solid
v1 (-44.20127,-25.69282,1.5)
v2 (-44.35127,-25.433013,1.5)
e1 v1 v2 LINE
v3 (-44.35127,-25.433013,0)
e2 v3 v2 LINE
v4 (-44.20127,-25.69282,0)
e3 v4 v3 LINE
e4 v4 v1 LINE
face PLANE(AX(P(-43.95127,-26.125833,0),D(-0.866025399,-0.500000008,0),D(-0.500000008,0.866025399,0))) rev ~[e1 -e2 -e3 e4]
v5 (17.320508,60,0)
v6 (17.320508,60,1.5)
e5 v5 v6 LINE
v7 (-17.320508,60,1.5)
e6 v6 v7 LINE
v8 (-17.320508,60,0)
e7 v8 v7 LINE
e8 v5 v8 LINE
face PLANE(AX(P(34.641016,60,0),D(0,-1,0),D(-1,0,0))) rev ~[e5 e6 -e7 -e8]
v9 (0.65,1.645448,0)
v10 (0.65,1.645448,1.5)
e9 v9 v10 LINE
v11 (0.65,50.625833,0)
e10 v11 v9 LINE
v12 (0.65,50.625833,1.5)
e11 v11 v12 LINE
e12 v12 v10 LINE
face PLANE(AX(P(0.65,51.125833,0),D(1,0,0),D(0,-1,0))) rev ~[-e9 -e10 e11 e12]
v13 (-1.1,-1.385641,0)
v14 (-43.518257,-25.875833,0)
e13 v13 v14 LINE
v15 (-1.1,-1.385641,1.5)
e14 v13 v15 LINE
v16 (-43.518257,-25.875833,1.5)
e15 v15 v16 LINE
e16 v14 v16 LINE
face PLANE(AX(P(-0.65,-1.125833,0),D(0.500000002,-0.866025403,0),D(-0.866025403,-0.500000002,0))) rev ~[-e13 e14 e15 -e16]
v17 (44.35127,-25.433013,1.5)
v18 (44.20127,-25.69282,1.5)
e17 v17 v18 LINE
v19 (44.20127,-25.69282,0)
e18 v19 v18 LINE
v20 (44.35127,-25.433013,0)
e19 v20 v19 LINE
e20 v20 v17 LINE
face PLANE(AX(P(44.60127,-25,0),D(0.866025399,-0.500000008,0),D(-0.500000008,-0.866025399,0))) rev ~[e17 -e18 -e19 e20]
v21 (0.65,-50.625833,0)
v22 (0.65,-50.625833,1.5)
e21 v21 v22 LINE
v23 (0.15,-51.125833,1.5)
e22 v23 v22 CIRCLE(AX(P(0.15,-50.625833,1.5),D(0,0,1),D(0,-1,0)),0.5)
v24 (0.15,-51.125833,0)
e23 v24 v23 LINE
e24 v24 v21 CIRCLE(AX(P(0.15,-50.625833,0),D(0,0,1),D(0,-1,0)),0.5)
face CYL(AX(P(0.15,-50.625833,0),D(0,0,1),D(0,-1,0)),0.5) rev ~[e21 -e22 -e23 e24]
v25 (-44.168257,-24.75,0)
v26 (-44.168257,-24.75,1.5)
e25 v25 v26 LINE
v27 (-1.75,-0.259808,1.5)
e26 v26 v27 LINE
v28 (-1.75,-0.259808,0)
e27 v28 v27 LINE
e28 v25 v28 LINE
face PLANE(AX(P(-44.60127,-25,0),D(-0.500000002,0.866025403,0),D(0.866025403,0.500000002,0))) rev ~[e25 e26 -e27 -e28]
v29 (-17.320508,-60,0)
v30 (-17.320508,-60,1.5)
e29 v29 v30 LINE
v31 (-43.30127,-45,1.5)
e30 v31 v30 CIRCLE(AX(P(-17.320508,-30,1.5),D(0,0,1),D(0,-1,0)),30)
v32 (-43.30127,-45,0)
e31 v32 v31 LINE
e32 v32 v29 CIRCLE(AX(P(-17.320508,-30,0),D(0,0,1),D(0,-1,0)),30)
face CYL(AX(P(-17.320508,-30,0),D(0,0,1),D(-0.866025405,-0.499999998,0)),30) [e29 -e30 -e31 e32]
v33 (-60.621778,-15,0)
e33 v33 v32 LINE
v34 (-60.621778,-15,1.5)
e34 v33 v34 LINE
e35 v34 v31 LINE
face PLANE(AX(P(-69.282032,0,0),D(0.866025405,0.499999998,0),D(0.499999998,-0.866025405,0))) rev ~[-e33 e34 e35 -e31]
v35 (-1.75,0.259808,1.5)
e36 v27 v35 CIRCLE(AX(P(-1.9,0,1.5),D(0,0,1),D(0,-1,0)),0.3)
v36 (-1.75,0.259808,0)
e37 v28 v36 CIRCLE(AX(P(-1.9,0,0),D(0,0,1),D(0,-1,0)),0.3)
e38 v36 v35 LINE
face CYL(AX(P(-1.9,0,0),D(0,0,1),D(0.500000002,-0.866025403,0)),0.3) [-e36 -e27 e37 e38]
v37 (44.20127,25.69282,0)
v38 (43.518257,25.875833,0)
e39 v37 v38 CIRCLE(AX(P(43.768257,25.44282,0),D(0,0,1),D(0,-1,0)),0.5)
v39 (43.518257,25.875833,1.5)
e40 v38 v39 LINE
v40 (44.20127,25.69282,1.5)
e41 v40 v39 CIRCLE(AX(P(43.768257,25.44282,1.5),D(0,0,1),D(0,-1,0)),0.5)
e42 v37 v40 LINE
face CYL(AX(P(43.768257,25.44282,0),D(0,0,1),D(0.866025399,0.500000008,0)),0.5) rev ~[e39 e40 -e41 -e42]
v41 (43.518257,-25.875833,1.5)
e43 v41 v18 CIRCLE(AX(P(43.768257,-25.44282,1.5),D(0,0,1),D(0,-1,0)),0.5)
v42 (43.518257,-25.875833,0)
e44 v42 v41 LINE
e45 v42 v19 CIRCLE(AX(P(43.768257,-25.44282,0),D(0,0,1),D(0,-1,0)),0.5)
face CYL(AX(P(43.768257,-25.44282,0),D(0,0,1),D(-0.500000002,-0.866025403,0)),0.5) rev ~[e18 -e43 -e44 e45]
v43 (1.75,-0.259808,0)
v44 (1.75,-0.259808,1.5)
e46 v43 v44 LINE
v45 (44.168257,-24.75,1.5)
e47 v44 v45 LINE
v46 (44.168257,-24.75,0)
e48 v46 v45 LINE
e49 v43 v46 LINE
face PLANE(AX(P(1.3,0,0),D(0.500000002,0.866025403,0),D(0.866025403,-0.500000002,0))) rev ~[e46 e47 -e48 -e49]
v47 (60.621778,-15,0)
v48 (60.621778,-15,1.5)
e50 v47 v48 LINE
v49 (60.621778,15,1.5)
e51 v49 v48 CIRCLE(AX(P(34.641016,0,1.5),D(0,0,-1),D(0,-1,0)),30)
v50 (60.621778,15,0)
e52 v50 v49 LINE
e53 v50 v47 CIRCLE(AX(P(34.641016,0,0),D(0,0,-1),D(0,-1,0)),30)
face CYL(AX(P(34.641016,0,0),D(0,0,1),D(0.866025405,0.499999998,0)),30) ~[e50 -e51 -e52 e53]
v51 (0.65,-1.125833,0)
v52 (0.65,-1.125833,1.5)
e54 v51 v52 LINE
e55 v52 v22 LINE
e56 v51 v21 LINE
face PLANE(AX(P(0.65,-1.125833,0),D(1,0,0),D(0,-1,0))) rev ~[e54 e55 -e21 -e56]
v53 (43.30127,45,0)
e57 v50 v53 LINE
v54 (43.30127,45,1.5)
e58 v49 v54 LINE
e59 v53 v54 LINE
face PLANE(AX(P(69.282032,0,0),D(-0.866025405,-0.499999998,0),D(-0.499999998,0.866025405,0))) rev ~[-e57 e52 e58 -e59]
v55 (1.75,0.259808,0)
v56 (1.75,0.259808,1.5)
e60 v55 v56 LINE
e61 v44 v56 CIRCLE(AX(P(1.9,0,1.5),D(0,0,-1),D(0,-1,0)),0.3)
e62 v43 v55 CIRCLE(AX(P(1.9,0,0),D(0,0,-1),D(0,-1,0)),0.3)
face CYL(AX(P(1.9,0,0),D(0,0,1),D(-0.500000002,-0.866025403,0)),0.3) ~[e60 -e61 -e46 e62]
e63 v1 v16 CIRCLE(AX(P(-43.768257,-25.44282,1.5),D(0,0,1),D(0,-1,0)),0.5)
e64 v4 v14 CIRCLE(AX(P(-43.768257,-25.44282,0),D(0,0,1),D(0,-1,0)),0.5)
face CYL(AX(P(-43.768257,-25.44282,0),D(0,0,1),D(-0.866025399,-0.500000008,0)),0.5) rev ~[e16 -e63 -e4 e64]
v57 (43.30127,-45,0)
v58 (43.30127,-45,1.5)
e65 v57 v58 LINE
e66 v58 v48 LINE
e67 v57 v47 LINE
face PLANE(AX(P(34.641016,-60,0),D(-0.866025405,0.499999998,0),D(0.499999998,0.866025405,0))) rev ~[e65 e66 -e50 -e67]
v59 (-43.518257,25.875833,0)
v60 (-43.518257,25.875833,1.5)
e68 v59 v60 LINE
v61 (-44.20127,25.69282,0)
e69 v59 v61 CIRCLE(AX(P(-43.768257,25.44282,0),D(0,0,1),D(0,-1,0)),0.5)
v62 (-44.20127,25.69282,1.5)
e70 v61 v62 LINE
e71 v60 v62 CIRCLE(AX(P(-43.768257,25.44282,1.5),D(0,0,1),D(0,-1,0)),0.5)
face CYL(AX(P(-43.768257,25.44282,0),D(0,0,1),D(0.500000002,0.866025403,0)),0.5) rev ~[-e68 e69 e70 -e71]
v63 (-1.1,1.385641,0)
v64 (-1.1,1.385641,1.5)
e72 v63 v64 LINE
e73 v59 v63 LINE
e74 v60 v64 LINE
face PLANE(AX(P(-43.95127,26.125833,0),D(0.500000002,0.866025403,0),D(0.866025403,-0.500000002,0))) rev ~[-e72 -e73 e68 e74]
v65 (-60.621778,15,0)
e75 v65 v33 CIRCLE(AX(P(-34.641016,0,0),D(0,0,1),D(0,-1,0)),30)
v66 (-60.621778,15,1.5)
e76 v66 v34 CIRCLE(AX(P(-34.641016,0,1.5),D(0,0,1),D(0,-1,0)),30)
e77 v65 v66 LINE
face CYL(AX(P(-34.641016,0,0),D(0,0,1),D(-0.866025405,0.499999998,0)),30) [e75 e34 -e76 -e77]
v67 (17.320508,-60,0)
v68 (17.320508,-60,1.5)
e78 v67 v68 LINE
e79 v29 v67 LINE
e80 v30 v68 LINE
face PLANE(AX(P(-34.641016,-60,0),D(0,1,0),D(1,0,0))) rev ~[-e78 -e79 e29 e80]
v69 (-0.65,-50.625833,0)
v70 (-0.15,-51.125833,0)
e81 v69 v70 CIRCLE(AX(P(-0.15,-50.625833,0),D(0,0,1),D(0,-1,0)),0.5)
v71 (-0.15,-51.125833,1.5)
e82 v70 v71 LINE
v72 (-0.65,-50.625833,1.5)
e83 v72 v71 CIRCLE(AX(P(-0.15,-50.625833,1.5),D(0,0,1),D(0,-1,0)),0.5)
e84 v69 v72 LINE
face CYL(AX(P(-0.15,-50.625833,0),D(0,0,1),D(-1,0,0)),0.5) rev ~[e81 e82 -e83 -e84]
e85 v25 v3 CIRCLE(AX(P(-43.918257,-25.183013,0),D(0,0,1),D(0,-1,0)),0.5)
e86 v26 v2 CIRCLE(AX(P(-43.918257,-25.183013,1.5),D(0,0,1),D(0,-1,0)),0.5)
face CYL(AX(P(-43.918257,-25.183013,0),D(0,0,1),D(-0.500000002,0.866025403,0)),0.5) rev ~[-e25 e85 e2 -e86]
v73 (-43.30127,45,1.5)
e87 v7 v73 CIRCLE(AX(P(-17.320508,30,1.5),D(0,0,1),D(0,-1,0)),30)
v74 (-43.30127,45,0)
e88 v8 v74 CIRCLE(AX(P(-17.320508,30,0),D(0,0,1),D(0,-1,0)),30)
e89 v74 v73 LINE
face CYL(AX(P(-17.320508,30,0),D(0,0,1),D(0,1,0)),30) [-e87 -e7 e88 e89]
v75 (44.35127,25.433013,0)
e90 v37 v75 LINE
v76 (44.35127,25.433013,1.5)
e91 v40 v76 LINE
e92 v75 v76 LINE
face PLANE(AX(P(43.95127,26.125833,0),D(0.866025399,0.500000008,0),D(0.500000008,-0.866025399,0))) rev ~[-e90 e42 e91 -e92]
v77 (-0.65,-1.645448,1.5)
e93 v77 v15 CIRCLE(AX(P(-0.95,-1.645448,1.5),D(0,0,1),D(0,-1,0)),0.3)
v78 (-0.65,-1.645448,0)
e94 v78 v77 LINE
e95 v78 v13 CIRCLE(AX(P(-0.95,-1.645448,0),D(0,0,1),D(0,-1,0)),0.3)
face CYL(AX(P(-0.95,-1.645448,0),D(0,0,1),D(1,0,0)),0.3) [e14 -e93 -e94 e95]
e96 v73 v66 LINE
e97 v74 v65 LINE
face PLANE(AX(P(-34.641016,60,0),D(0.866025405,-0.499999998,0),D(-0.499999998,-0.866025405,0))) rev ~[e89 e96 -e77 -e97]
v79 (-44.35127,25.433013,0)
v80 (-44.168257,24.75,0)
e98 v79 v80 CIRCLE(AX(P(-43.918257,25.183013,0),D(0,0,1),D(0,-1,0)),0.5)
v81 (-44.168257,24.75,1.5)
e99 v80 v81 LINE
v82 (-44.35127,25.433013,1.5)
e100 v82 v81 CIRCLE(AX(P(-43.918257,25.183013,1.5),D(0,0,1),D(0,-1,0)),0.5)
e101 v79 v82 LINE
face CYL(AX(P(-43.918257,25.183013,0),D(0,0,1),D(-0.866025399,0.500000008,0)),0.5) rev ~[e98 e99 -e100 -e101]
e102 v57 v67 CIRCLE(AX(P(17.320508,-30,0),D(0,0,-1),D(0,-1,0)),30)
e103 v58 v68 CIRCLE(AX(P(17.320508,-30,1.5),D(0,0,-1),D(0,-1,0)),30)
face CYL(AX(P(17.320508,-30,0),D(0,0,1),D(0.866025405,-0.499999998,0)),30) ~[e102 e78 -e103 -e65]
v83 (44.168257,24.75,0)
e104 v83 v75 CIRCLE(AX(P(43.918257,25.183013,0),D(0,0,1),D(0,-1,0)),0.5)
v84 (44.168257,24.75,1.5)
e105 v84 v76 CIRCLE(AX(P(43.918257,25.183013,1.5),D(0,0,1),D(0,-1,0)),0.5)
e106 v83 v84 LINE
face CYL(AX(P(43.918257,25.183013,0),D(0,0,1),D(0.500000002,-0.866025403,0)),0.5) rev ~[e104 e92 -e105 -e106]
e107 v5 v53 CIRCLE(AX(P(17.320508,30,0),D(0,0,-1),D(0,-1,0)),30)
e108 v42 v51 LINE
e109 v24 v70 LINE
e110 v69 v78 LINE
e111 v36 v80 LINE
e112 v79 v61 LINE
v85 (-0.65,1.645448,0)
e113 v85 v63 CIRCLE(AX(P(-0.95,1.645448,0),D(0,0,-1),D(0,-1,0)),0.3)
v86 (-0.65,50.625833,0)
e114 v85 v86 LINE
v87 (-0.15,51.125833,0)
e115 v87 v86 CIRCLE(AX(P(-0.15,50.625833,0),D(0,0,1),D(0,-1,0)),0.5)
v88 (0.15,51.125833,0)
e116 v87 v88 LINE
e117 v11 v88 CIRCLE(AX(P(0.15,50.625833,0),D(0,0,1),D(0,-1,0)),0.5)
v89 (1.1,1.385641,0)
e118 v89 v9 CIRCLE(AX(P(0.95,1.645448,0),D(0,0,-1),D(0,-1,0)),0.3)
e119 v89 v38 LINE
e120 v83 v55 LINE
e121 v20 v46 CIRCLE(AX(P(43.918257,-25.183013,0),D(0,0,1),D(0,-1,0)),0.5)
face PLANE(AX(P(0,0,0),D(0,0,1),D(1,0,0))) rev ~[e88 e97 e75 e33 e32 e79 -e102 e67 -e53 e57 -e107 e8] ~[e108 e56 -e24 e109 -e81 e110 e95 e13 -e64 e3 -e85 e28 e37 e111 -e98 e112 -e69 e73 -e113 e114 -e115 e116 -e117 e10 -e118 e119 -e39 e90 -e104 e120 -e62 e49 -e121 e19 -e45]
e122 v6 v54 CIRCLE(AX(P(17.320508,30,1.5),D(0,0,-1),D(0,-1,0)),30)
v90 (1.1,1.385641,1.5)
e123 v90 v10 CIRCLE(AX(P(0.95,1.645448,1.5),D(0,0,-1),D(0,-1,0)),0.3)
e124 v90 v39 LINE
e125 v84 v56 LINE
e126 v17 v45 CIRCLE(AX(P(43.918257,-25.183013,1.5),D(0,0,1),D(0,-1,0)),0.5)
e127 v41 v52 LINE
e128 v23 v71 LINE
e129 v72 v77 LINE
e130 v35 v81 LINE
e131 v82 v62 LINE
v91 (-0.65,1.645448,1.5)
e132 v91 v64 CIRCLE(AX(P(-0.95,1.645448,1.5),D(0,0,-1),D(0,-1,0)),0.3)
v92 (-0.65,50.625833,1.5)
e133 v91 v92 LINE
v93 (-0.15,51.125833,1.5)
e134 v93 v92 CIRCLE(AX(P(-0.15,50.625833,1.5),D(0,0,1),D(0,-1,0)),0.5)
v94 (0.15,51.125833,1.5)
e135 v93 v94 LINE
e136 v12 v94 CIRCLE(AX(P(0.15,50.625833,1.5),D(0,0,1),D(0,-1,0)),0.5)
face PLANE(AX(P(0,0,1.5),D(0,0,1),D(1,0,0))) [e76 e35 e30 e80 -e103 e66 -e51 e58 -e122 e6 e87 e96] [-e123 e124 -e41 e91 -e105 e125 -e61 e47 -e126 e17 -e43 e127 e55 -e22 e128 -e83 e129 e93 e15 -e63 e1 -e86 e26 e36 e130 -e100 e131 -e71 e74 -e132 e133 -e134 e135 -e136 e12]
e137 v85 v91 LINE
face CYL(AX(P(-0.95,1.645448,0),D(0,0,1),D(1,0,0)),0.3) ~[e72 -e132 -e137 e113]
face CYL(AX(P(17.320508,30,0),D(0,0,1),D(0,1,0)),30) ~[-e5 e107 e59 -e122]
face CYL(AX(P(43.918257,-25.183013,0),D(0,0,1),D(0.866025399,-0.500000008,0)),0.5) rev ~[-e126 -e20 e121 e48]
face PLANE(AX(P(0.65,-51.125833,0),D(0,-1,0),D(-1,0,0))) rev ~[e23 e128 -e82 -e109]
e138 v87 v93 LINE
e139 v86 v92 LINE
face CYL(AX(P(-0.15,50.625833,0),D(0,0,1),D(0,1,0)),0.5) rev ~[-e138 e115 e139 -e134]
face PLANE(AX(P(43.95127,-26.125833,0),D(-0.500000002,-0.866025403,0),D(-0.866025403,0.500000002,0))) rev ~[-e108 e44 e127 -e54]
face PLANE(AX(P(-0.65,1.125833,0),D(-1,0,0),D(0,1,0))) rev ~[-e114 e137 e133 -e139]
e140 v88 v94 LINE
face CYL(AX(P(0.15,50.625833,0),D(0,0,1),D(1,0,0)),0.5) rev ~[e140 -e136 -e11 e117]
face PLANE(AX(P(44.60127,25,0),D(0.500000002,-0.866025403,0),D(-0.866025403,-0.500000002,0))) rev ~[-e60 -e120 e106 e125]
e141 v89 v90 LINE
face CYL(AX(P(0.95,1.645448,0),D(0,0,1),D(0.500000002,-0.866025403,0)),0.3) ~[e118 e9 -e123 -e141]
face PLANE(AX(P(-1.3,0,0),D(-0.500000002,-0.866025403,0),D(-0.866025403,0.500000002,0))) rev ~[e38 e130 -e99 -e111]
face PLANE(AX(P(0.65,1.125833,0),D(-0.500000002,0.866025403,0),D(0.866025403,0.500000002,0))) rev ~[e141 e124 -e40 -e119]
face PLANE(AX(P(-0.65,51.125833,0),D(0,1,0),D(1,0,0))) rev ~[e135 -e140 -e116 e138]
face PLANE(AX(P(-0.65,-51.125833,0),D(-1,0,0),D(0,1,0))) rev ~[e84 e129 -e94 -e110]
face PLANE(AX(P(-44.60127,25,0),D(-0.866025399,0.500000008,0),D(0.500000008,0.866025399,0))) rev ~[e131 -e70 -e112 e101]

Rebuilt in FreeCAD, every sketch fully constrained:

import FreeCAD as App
import Part
import Sketcher
from FreeCAD import Vector
Q = App.Units.Quantity


def edges_at(feature, points):
    """Names of the edges that pass closest to the given points."""
    edges = feature.Shape.Edges
    near = lambda p: min(range(len(edges)), key=lambda i: edges[i].distToShape(Part.Vertex(*p))[0])
    return sorted({f"Edge{near(p) + 1}" for p in points})

doc = App.newDocument("Part")
body = doc.addObject("PartDesign::Body", "Body")

# Sketch on XY plane
sketch1 = body.newObject("Sketcher::SketchObject", "Sketch")
sketch1.AttachmentSupport = (doc.getObject("XY_Plane"), [""])
sketch1.MapMode = "FlatFace"
sketch1.addGeometry([
    Part.LineSegment(Vector(34.641016, 60, 0), Vector(-34.641016, 60, 0)),  # 0
    Part.LineSegment(Vector(-34.641016, 60, 0), Vector(-69.282032, 0, 0)),  # 1
    Part.LineSegment(Vector(-69.282032, 0, 0), Vector(-34.641016, -60, 0)),  # 2
    Part.LineSegment(Vector(-34.641016, -60, 0), Vector(34.641016, -60, 0)),  # 3
    Part.LineSegment(Vector(34.641016, -60, 0), Vector(69.282032, 0, 0)),  # 4
    Part.LineSegment(Vector(69.282032, 0, 0), Vector(34.641016, 60, 0)),  # 5
    Part.LineSegment(Vector(43.95127, -26.125833, 0), Vector(0.65, -1.125833, 0)),  # 6
    Part.LineSegment(Vector(0.65, -1.125833, 0), Vector(0.65, -51.125833, 0)),  # 7
    Part.LineSegment(Vector(0.65, -51.125833, 0), Vector(-0.65, -51.125833, 0)),  # 8
    Part.LineSegment(Vector(-0.65, -51.125833, 0), Vector(-0.65, -1.125833, 0)),  # 9
    Part.LineSegment(Vector(-0.65, -1.125833, 0), Vector(-43.95127, -26.125833, 0)),  # 10
    Part.LineSegment(Vector(-43.95127, -26.125833, 0), Vector(-44.60127, -25, 0)),  # 11
    Part.LineSegment(Vector(-44.60127, -25, 0), Vector(-1.3, 0, 0)),  # 12
    Part.LineSegment(Vector(-1.3, 0, 0), Vector(-44.60127, 25, 0)),  # 13
    Part.LineSegment(Vector(-44.60127, 25, 0), Vector(-43.95127, 26.125833, 0)),  # 14
    Part.LineSegment(Vector(-43.95127, 26.125833, 0), Vector(-0.65, 1.125833, 0)),  # 15
    Part.LineSegment(Vector(-0.65, 1.125833, 0), Vector(-0.65, 51.125833, 0)),  # 16
    Part.LineSegment(Vector(-0.65, 51.125833, 0), Vector(0.65, 51.125833, 0)),  # 17
    Part.LineSegment(Vector(0.65, 51.125833, 0), Vector(0.65, 1.125833, 0)),  # 18
    Part.LineSegment(Vector(0.65, 1.125833, 0), Vector(43.95127, 26.125833, 0)),  # 19
    Part.LineSegment(Vector(43.95127, 26.125833, 0), Vector(44.60127, 25, 0)),  # 20
    Part.LineSegment(Vector(44.60127, 25, 0), Vector(1.3, 0, 0)),  # 21
    Part.LineSegment(Vector(1.3, 0, 0), Vector(44.60127, -25, 0)),  # 22
    Part.LineSegment(Vector(44.60127, -25, 0), Vector(43.95127, -26.125833, 0)),  # 23
], False)
sketch1.addConstraint([
    Sketcher.Constraint("Coincident", 0, 2, 1, 1),
    Sketcher.Constraint("Coincident", 1, 2, 2, 1),
    Sketcher.Constraint("Coincident", 2, 2, 3, 1),
    Sketcher.Constraint("Coincident", 3, 2, 4, 1),
    Sketcher.Constraint("Coincident", 4, 2, 5, 1),
    Sketcher.Constraint("Coincident", 5, 2, 0, 1),
    Sketcher.Constraint("Coincident", 6, 2, 7, 1),
    Sketcher.Constraint("Coincident", 7, 2, 8, 1),
    Sketcher.Constraint("Coincident", 8, 2, 9, 1),
    Sketcher.Constraint("Coincident", 9, 2, 10, 1),
    Sketcher.Constraint("Coincident", 10, 2, 11, 1),
    Sketcher.Constraint("Coincident", 11, 2, 12, 1),
    Sketcher.Constraint("Coincident", 12, 2, 13, 1),
    Sketcher.Constraint("Coincident", 13, 2, 14, 1),
    Sketcher.Constraint("Coincident", 14, 2, 15, 1),
    Sketcher.Constraint("Coincident", 15, 2, 16, 1),
    Sketcher.Constraint("Coincident", 16, 2, 17, 1),
    Sketcher.Constraint("Coincident", 17, 2, 18, 1),
    Sketcher.Constraint("Coincident", 18, 2, 19, 1),
    Sketcher.Constraint("Coincident", 19, 2, 20, 1),
    Sketcher.Constraint("Coincident", 20, 2, 21, 1),
    Sketcher.Constraint("Coincident", 21, 2, 22, 1),
    Sketcher.Constraint("Coincident", 22, 2, 23, 1),
    Sketcher.Constraint("Coincident", 23, 2, 6, 1),
    Sketcher.Constraint("Horizontal", 0),
    Sketcher.Constraint("Horizontal", 3),
    Sketcher.Constraint("Vertical", 7),
    Sketcher.Constraint("Horizontal", 8),
    Sketcher.Constraint("Vertical", 9),
    Sketcher.Constraint("Vertical", 16),
    Sketcher.Constraint("Horizontal", 17),
    Sketcher.Constraint("Vertical", 18),
    Sketcher.Constraint("Symmetric", 0, 2, 3, 2, -1, 1),
    Sketcher.Constraint("Symmetric", 1, 2, 4, 2, -1, 1),
    Sketcher.Constraint("Symmetric", 6, 2, 15, 2, -1, 1),
    Sketcher.Constraint("Symmetric", 8, 2, 17, 2, -1, 1),
    Sketcher.Constraint("Symmetric", 10, 2, 19, 2, -1, 1),
    Sketcher.Constraint("Symmetric", 11, 2, 20, 2, -1, 1),
    Sketcher.Constraint("Symmetric", 12, 2, 21, 2, -1, 1),
    Sketcher.Constraint("Symmetric", 13, 2, 22, 2, -1, 1),
    Sketcher.Constraint("Symmetric", 14, 2, 23, 2, -1, 1),
    Sketcher.Constraint("Symmetric", 6, 2, 9, 2, -2),
    Sketcher.Constraint("Symmetric", 14, 2, 19, 2, -2),
    Sketcher.Constraint("Symmetric", 13, 2, 20, 2, -2),
    Sketcher.Constraint("PointOnObject", 1, 2, -1),
    Sketcher.Constraint("PointOnObject", 12, 2, -1),
    Sketcher.Constraint("Parallel", 2, 5),
    Sketcher.Constraint("Perpendicular", 4, 6),
    Sketcher.Constraint("Perpendicular", 5, 10),
    Sketcher.Constraint("Perpendicular", 10, 11),
    Sketcher.Constraint("Perpendicular", 11, 12),
    Sketcher.Constraint("Parallel", 12, 19),
    Sketcher.Constraint("Equal", 10, 12),
    Sketcher.Constraint("DistanceY", 7, 2, 7, 1, 50.0),
    Sketcher.Constraint("Angle", 1, Q("-120 deg")),
    Sketcher.Constraint("Distance", 6, 50.0),
    Sketcher.Constraint("DistanceX", 8, 2, 8, 1, 1.3),
    Sketcher.Constraint("DistanceY", -1, 1, 0, 2, 60.0),
    Sketcher.Constraint("Distance", 11, 1.3),
    Sketcher.Constraint("DistanceX", 0, 2, 0, 1, 69.282032),
])
pad1 = body.newObject("PartDesign::Pad", "Pad")
pad1.Profile = sketch1
pad1.Length = 1.5
doc.recompute()

fillet = body.newObject("PartDesign::Fillet", "Fillet")
fillet.Base = (pad1, edges_at(pad1, [
    (34.641, 60, 0.75),
    (69.282, 0, 0.75),
    (34.641, -60, 0.75),
    (-34.641, -60, 0.75),
    (-69.282, 0, 0.75),
    (-34.641, 60, 0.75),
]))
fillet.Radius = 30
doc.recompute()

fillet2 = body.newObject("PartDesign::Fillet", "Fillet001")
fillet2.Base = (fillet, edges_at(fillet, [
    (43.951, -26.126, 0.75),
    (44.601, -25, 0.75),
    (43.951, 26.126, 0.75),
    (44.601, 25, 0.75),
    (-0.65, 51.126, 0.75),
    (0.65, 51.126, 0.75),
    (-44.601, 25, 0.75),
    (-43.951, 26.126, 0.75),
    (-43.951, -26.126, 0.75),
    (-44.601, -25, 0.75),
    (-0.65, -51.126, 0.75),
    (0.65, -51.126, 0.75),
]))
fillet2.Radius = 0.5
doc.recompute()

fillet3 = body.newObject("PartDesign::Fillet", "Fillet002")
fillet3.Base = (fillet2, edges_at(fillet2, [
    (-0.65, 1.126, 0.75),
    (-1.3, 0, 0.75),
    (-0.65, -1.126, 0.75),
    (0.65, 1.126, 0.75),
    (1.3, 0, 0.75),
]))
fillet3.Radius = 0.3

doc.recompute()
